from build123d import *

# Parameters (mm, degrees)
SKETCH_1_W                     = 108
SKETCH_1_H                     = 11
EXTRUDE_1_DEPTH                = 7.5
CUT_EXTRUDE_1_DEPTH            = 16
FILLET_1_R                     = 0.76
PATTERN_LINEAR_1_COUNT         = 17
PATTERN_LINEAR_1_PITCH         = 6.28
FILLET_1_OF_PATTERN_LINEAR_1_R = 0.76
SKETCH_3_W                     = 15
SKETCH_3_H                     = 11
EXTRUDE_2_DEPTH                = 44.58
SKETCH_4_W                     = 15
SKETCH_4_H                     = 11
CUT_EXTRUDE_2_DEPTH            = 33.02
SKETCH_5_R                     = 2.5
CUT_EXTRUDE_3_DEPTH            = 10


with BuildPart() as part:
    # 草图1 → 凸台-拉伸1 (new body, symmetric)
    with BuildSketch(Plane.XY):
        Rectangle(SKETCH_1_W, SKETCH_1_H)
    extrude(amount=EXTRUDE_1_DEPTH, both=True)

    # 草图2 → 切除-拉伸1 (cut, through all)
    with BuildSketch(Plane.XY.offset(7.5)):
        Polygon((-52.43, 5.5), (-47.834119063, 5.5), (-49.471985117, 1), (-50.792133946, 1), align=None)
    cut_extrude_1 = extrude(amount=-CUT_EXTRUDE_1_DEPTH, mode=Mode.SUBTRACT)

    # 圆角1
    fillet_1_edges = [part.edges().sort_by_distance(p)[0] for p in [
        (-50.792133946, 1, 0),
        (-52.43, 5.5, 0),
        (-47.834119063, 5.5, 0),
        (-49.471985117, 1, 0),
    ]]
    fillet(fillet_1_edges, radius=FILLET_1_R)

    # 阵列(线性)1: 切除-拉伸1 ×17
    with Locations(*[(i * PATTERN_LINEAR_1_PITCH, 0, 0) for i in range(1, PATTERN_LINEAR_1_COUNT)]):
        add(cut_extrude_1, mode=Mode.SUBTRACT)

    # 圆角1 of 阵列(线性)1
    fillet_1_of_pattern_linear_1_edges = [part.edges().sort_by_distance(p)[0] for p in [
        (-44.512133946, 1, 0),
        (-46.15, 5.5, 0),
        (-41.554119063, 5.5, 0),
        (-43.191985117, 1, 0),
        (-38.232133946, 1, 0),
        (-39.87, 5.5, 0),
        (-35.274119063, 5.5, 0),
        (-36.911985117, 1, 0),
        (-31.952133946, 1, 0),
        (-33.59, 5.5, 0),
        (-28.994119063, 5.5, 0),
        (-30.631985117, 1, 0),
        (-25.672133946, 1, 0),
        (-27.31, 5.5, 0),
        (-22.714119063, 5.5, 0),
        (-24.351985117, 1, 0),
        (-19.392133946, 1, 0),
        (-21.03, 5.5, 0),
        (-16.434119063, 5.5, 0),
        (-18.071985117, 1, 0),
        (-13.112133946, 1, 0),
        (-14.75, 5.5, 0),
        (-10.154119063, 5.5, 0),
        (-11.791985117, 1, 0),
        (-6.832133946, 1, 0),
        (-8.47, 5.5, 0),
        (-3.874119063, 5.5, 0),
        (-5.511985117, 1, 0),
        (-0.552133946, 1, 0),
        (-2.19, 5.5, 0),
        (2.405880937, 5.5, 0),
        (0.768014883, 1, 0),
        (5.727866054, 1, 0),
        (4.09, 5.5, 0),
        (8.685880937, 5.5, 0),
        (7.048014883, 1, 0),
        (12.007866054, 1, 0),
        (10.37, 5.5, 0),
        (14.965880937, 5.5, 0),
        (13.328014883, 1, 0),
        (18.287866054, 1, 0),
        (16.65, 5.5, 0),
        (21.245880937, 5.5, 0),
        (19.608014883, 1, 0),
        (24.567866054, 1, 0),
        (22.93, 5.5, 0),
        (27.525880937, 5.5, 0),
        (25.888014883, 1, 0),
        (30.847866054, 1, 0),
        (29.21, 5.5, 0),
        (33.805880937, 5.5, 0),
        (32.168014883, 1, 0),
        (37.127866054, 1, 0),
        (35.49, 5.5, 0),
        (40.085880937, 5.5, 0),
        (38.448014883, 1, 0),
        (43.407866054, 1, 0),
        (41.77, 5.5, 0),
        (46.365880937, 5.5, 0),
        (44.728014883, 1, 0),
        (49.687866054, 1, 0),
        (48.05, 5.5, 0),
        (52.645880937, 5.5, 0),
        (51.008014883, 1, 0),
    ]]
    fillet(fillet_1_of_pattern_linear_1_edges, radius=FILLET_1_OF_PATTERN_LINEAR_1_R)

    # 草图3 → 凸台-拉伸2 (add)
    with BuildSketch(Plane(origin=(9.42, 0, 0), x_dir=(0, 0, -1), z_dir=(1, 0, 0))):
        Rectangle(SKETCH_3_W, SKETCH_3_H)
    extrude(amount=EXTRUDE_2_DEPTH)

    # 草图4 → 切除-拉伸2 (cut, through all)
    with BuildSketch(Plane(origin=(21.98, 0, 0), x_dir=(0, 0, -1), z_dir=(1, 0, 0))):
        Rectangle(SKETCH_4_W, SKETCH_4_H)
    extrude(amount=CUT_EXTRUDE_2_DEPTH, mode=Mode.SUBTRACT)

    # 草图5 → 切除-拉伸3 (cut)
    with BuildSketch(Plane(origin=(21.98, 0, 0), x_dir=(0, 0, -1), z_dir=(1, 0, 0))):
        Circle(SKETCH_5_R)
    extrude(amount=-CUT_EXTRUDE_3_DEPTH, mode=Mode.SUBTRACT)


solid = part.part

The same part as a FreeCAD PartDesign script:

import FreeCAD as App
import Part
import Sketcher

V = App.Vector
Q = App.Units.Quantity


def edges_at(feature, points):
    """Names of the edges that pass closest to the given points."""
    edges = feature.Shape.Edges
    near = lambda p: min(range(len(edges)), key=lambda i: edges[i].distToShape(Part.Vertex(*p))[0])
    return sorted({f"Edge{near(p) + 1}" for p in points})

doc = App.newDocument("Part")
body = doc.addObject("PartDesign::Body", "Body")

# Sketch on XY plane
sketch1 = body.newObject("Sketcher::SketchObject", "Sketch")
sketch1.AttachmentSupport = (doc.getObject("XY_Plane"), [""])
sketch1.MapMode = "FlatFace"
sketch1.addGeometry(Part.LineSegment(V(-54, 6, 0), V(-54, -6, 0)), False)
sketch1.addGeometry(Part.LineSegment(V(-54, -6, 0), V(54, -6, 0)), False)
sketch1.addGeometry(Part.LineSegment(V(54, -6, 0), V(54, 6, 0)), False)
sketch1.addGeometry(Part.LineSegment(V(54, 6, 0), V(-54, 6, 0)), False)
sketch1.addConstraint(Sketcher.Constraint("Coincident", 0, 2, 1, 1))
sketch1.addConstraint(Sketcher.Constraint("Coincident", 1, 2, 2, 1))
sketch1.addConstraint(Sketcher.Constraint("Coincident", 2, 2, 3, 1))
sketch1.addConstraint(Sketcher.Constraint("Coincident", 3, 2, 0, 1))
sketch1.addConstraint(Sketcher.Constraint("Vertical", 0))
sketch1.addConstraint(Sketcher.Constraint("Horizontal", 1))
sketch1.addConstraint(Sketcher.Constraint("Vertical", 2))
sketch1.addConstraint(Sketcher.Constraint("Horizontal", 3))
sketch1.addConstraint(Sketcher.Constraint("Symmetric", 0, 2, 2, 2, -1, 1))
sketch1.addConstraint(Sketcher.Constraint("DistanceX", 1, 1, 1, 2, 108.0))
sketch1.addConstraint(Sketcher.Constraint("DistanceY", 0, 2, 0, 1, 11.0))
pad1 = body.newObject("PartDesign::Pad", "Pad")
pad1.Profile = sketch1
pad1.Length = 15
pad1.Midplane = True

# Sketch on XY plane
sketch2 = body.newObject("Sketcher::SketchObject", "Sketch001")
sketch2.AttachmentSupport = (doc.getObject("XY_Plane"), [""])
sketch2.MapMode = "FlatFace"
sketch2.AttachmentOffset = App.Placement(V(0, 0, 7.5), App.Rotation())
sketch2.addGeometry(Part.LineSegment(V(-47.8, 5.5, 0), V(-52.4, 5.5, 0)), False)
sketch2.addGeometry(Part.LineSegment(V(-52.4, 5.5, 0), V(-50.8, 1, 0)), False)
sketch2.addGeometry(Part.LineSegment(V(-50.8, 1, 0), V(-49.5, 1, 0)), False)
sketch2.addGeometry(Part.LineSegment(V(-49.5, 1, 0), V(-47.8, 5.5, 0)), False)
sketch2.addConstraint(Sketcher.Constraint("Coincident", 0, 2, 1, 1))
sketch2.addConstraint(Sketcher.Constraint("Coincident", 1, 2, 2, 1))
sketch2.addConstraint(Sketcher.Constraint("Coincident", 2, 2, 3, 1))
sketch2.addConstraint(Sketcher.Constraint("Coincident", 3, 2, 0, 1))
sketch2.addConstraint(Sketcher.Constraint("Horizontal", 0))
sketch2.addConstraint(Sketcher.Constraint("Horizontal", 2))
sketch2.addConstraint(Sketcher.Constraint("Equal", 1, 3))
sketch2.addConstraint(Sketcher.Constraint("Angle", 1, Q("-70 deg")))
sketch2.addConstraint(Sketcher.Constraint("DistanceY", -1, 1, 1, 2, 1.0))
sketch2.addConstraint(Sketcher.Constraint("DistanceY", -1, 1, 0, 2, 5.5))
sketch2.addConstraint(Sketcher.Constraint("DistanceX", 0, 2, -1, 1, 52.43))
sketch2.addConstraint(Sketcher.Constraint("DistanceX", 0, 2, 0, 1, 4.595881))
pocket1 = body.newObject("PartDesign::Pocket", "Pocket")
pocket1.Profile = sketch2
pocket1.Type = "ThroughAll"
doc.recompute()

fillet = body.newObject("PartDesign::Fillet", "Fillet")
fillet.Base = (pocket1, edges_at(pocket1, [
    (-50.792, 1, 0),
    (-52.43, 5.5, 0),
    (-47.834, 5.5, 0),
    (-49.472, 1, 0),
]))
fillet.Radius = 0.76
doc.recompute()

linearpattern = body.newObject("PartDesign::LinearPattern", "LinearPattern")
linearpattern.Originals = [pocket1]
linearpattern.Direction = (doc.getObject("X_Axis"), [""])
linearpattern.Mode = "offset"
linearpattern.Offset = 6.28
linearpattern.Occurrences = 17
body.Tip = linearpattern
doc.recompute()

fillet2 = body.newObject("PartDesign::Fillet", "Fillet001")
fillet2.Base = (linearpattern, edges_at(linearpattern, [
    (-44.512, 1, 0),
    (-46.15, 5.5, 0),
    (-41.554, 5.5, 0),
    (-43.192, 1, 0),
    (-38.232, 1, 0),
    (-39.87, 5.5, 0),
    (-35.274, 5.5, 0),
    (-36.912, 1, 0),
    (-31.952, 1, 0),
    (-33.59, 5.5, 0),
    (-28.994, 5.5, 0),
    (-30.632, 1, 0),
    (-25.672, 1, 0),
    (-27.31, 5.5, 0),
    (-22.714, 5.5, 0),
    (-24.352, 1, 0),
    (-19.392, 1, 0),
    (-21.03, 5.5, 0),
    (-16.434, 5.5, 0),
    (-18.072, 1, 0),
    (-13.112, 1, 0),
    (-14.75, 5.5, 0),
    (-10.154, 5.5, 0),
    (-11.792, 1, 0),
    (-6.832, 1, 0),
    (-8.47, 5.5, 0),
    (-3.874, 5.5, 0),
    (-5.512, 1, 0),
    (-0.552, 1, 0),
    (-2.19, 5.5, 0),
    (2.406, 5.5, 0),
    (0.768, 1, 0),
    (5.728, 1, 0),
    (4.09, 5.5, 0),
    (8.686, 5.5, 0),
    (7.048, 1, 0),
    (12.008, 1, 0),
    (10.37, 5.5, 0),
    (14.966, 5.5, 0),
    (13.328, 1, 0),
    (18.288, 1, 0),
    (16.65, 5.5, 0),
    (21.246, 5.5, 0),
    (19.608, 1, 0),
    (24.568, 1, 0),
    (22.93, 5.5, 0),
    (27.526, 5.5, 0),
    (25.888, 1, 0),
    (30.848, 1, 0),
    (29.21, 5.5, 0),
    (33.806, 5.5, 0),
    (32.168, 1, 0),
    (37.128, 1, 0),
    (35.49, 5.5, 0),
    (40.086, 5.5, 0),
    (38.448, 1, 0),
    (43.408, 1, 0),
    (41.77, 5.5, 0),
    (46.366, 5.5, 0),
    (44.728, 1, 0),
    (49.688, 1, 0),
    (48.05, 5.5, 0),
    (52.646, 5.5, 0),
    (51.008, 1, 0),
]))
fillet2.Radius = 0.76

# Sketch on YZ plane
sketch3 = body.newObject("Sketcher::SketchObject", "Sketch002")
sketch3.AttachmentSupport = (doc.getObject("YZ_Plane"), [""])
sketch3.MapMode = "FlatFace"
sketch3.AttachmentOffset = App.Placement(V(0, 0, 9.42), App.Rotation())
sketch3.addGeometry(Part.LineSegment(V(6, 8, 0), V(-6, 8, 0)), False)
sketch3.addGeometry(Part.LineSegment(V(-6, 8, 0), V(-6, -8, 0)), False)
sketch3.addGeometry(Part.LineSegment(V(-6, -8, 0), V(6, -8, 0)), False)
sketch3.addGeometry(Part.LineSegment(V(6, -8, 0), V(6, 8, 0)), False)
sketch3.addConstraint(Sketcher.Constraint("Coincident", 0, 2, 1, 1))
sketch3.addConstraint(Sketcher.Constraint("Coincident", 1, 2, 2, 1))
sketch3.addConstraint(Sketcher.Constraint("Coincident", 2, 2, 3, 1))
sketch3.addConstraint(Sketcher.Constraint("Coincident", 3, 2, 0, 1))
sketch3.addConstraint(Sketcher.Constraint("Horizontal", 0))
sketch3.addConstraint(Sketcher.Constraint("Vertical", 1))
sketch3.addConstraint(Sketcher.Constraint("Horizontal", 2))
sketch3.addConstraint(Sketcher.Constraint("Vertical", 3))
sketch3.addConstraint(Sketcher.Constraint("Symmetric", 0, 2, 2, 2, -1, 1))
sketch3.addConstraint(Sketcher.Constraint("DistanceX", 0, 2, 0, 1, 11.0))
sketch3.addConstraint(Sketcher.Constraint("DistanceY", 1, 2, 1, 1, 15.0))
pad2 = body.newObject("PartDesign::Pad", "Pad001")
pad2.Profile = sketch3
pad2.Length = 44.58

# Sketch on YZ plane
sketch4 = body.newObject("Sketcher::SketchObject", "Sketch003")
sketch4.AttachmentSupport = (doc.getObject("YZ_Plane"), [""])
sketch4.MapMode = "FlatFace"
sketch4.AttachmentOffset = App.Placement(V(0, 0, 21.98), App.Rotation())
sketch4.addGeometry(Part.LineSegment(V(6, 8, 0), V(-6, 8, 0)), False)
sketch4.addGeometry(Part.LineSegment(V(-6, 8, 0), V(-6, -8, 0)), False)
sketch4.addGeometry(Part.LineSegment(V(-6, -8, 0), V(6, -8, 0)), False)
sketch4.addGeometry(Part.LineSegment(V(6, -8, 0), V(6, 8, 0)), False)
sketch4.addConstraint(Sketcher.Constraint("Coincident", 0, 2, 1, 1))
sketch4.addConstraint(Sketcher.Constraint("Coincident", 1, 2, 2, 1))
sketch4.addConstraint(Sketcher.Constraint("Coincident", 2, 2, 3, 1))
sketch4.addConstraint(Sketcher.Constraint("Coincident", 3, 2, 0, 1))
sketch4.addConstraint(Sketcher.Constraint("Horizontal", 0))
sketch4.addConstraint(Sketcher.Constraint("Vertical", 1))
sketch4.addConstraint(Sketcher.Constraint("Horizontal", 2))
sketch4.addConstraint(Sketcher.Constraint("Vertical", 3))
sketch4.addConstraint(Sketcher.Constraint("Symmetric", 0, 2, 2, 2, -1, 1))
sketch4.addConstraint(Sketcher.Constraint("DistanceX", 0, 2, 0, 1, 11.0))
sketch4.addConstraint(Sketcher.Constraint("DistanceY", 1, 2, 1, 1, 15.0))
pocket2 = body.newObject("PartDesign::Pocket", "Pocket001")
pocket2.Profile = sketch4
pocket2.Type = "ThroughAll"
pocket2.Reversed = True

# Sketch on YZ plane
sketch5 = body.newObject("Sketcher::SketchObject", "Sketch004")
sketch5.AttachmentSupport = (doc.getObject("YZ_Plane"), [""])
sketch5.MapMode = "FlatFace"
sketch5.AttachmentOffset = App.Placement(V(0, 0, 21.98), App.Rotation())
sketch5.addGeometry(Part.Circle(V(0, 0, 0), V(0, 0, 1), 2.5), False)
sketch5.addConstraint(Sketcher.Constraint("Coincident", 0, 3, -1, 1))
sketch5.addConstraint(Sketcher.Constraint("Diameter", 0, 5.0))
pocket3 = body.newObject("PartDesign::Pocket", "Pocket002")
pocket3.Profile = sketch5
pocket3.Length = 10

doc.recompute()
